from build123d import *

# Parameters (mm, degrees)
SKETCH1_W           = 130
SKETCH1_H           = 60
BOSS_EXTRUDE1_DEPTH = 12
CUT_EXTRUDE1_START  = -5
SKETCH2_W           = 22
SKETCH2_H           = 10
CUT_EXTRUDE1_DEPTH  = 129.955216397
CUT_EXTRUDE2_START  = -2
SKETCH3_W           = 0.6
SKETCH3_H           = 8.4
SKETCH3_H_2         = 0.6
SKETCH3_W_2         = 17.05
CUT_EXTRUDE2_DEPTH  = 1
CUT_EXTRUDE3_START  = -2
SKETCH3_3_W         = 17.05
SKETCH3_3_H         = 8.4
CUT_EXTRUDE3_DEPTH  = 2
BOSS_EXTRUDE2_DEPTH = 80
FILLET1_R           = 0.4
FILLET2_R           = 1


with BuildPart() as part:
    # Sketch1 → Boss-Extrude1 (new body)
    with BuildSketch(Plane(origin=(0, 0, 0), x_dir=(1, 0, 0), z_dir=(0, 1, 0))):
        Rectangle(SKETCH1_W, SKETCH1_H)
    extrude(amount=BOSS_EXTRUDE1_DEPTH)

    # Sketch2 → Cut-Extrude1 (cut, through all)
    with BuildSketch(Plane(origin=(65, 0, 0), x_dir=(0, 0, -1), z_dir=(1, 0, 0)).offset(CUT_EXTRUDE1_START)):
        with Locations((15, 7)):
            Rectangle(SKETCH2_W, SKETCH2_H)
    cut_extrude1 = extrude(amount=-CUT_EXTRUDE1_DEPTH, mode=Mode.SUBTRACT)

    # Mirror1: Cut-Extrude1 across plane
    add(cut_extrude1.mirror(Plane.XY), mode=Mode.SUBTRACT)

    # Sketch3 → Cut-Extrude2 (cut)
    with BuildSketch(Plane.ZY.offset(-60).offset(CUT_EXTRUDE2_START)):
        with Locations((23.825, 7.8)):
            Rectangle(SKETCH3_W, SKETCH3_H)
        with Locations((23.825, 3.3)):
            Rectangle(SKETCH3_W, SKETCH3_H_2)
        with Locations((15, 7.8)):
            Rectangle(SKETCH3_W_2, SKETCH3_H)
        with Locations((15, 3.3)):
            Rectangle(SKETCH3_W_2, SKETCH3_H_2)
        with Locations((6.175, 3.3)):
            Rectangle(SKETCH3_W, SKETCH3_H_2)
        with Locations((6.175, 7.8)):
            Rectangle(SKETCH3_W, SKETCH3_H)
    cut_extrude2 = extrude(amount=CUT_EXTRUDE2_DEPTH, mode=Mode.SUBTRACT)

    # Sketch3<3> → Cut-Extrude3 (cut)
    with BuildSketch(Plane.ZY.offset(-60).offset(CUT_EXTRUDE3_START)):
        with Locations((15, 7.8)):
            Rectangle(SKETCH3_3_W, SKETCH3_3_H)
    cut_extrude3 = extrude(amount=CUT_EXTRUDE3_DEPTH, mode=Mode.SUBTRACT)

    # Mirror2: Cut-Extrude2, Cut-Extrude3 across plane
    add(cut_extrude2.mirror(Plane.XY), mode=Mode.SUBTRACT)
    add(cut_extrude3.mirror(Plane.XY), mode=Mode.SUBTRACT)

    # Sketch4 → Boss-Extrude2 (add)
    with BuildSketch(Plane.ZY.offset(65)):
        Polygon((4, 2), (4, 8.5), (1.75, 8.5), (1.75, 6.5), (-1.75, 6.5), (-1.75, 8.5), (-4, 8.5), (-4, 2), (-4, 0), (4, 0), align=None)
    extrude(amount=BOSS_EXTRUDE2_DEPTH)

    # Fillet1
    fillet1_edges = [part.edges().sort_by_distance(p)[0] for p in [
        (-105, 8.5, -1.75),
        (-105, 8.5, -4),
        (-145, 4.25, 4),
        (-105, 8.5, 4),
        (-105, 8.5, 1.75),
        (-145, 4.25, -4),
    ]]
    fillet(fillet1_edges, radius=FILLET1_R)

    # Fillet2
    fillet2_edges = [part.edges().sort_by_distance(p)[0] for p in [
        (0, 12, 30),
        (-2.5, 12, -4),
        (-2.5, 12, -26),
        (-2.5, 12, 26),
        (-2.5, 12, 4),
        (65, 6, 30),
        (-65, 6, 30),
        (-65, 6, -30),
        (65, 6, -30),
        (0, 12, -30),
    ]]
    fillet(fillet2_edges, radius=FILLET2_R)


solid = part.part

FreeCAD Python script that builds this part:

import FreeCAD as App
import Part
import Sketcher

V = App.Vector
Q = App.Units.Quantity


def edges_at(feature, points):
    """Names of the edges that pass closest to the given points."""
    edges = feature.Shape.Edges
    near = lambda p: min(range(len(edges)), key=lambda i: edges[i].distToShape(Part.Vertex(*p))[0])
    return sorted({f"Edge{near(p) + 1}" for p in points})


def add_polygon(sketch, points):
    """Adds a closed chain of lines whose ends are joined by coincident constraints."""
    first, n = sketch.GeometryCount, len(points)
    for a, b in zip(points, points[1:] + points[:1]):
        sketch.addGeometry(Part.LineSegment(App.Vector(*a, 0), App.Vector(*b, 0)), False)
    for i in range(n):
        sketch.addConstraint(Sketcher.Constraint("Coincident", first + i, 2, first + (i + 1) % n, 1))

doc = App.newDocument("Part")
body = doc.addObject("PartDesign::Body", "Body")

sketch1 = body.newObject("Sketcher::SketchObject", "Sketch")
sketch1.AttachmentSupport = (doc.getObject("XZ_Plane"), [""])
sketch1.MapMode = "FlatFace"
add_polygon(sketch1, [(-65, -30), (-65, 30), (65, 30), (65, -30)])
sketch1.addConstraint([
    Sketcher.Constraint("Vertical", 0),
    Sketcher.Constraint("Horizontal", 1),
    Sketcher.Constraint("Vertical", 2),
    Sketcher.Constraint("Horizontal", 3),
    Sketcher.Constraint("Symmetric", 0, 2, 2, 2, -1, 1),
    Sketcher.Constraint("DistanceX", 1, 1, 1, 2, Q("130 mm")),
    Sketcher.Constraint("DistanceY", 0, 1, 0, 2, Q("60 mm")),
])
pad1 = body.newObject("PartDesign::Pad", "Pad")
pad1.Profile = sketch1
pad1.Length = 12
pad1.Reversed = True

sketch2 = body.newObject("Sketcher::SketchObject", "Sketch001")
sketch2.AttachmentSupport = (doc.getObject("YZ_Plane"), [""])
sketch2.MapMode = "FlatFace"
sketch2.AttachmentOffset = App.Placement(V(0, 0, 60), App.Rotation())
add_polygon(sketch2, [(12, -4), (2, -4), (2, -26), (12, -26)])
sketch2.addConstraint([
    Sketcher.Constraint("Horizontal", 0),
    Sketcher.Constraint("Vertical", 1),
    Sketcher.Constraint("Horizontal", 2),
    Sketcher.Constraint("Vertical", 3),
    Sketcher.Constraint("DistanceX", 0, 2, 0, 1, Q("10 mm")),
    Sketcher.Constraint("DistanceY", 1, 2, 1, 1, Q("22 mm")),
    Sketcher.Constraint("DistanceX", -1, 1, 0, 2, Q("2 mm")),
    Sketcher.Constraint("DistanceY", 0, 2, -1, 1, Q("4 mm")),
])
pocket1 = body.newObject("PartDesign::Pocket", "Pocket")
pocket1.Profile = sketch2
pocket1.Type = "ThroughAll"
doc.recompute()

mirrored = body.newObject("PartDesign::Mirrored", "Mirrored")
mirrored.Originals = [pocket1]
mirrored.MirrorPlane = (doc.getObject("XY_Plane"), [""])
body.Tip = mirrored

sketch3 = body.newObject("Sketcher::SketchObject", "Sketch002")
sketch3.AttachmentSupport = (doc.getObject("YZ_Plane"), [""])
sketch3.MapMode = "FlatFace"
sketch3.AttachmentOffset = App.Placement(V(0, 0, 62), App.Rotation())
add_polygon(sketch3, [(3, 24), (12, 24), (12, 6), (3, 6)])
sketch3.addConstraint([
    Sketcher.Constraint("Horizontal", 0),
    Sketcher.Constraint("Vertical", 1),
    Sketcher.Constraint("Horizontal", 2),
    Sketcher.Constraint("Vertical", 3),
    Sketcher.Constraint("DistanceX", 0, 1, 0, 2, Q("9 mm")),
    Sketcher.Constraint("DistanceX", -1, 1, 0, 2, Q("12 mm")),
    Sketcher.Constraint("DistanceY", 1, 2, 1, 1, Q("18.25 mm")),
    Sketcher.Constraint("DistanceY", -1, 1, 0, 2, Q("24.125 mm")),
])
pocket2 = body.newObject("PartDesign::Pocket", "Pocket001")
pocket2.Profile = sketch3
pocket2.Length = 1

sketch4 = body.newObject("Sketcher::SketchObject", "Sketch003")
sketch4.AttachmentSupport = (doc.getObject("YZ_Plane"), [""])
sketch4.MapMode = "FlatFace"
sketch4.AttachmentOffset = App.Placement(V(0, 0, 62), App.Rotation())
add_polygon(sketch4, [(12, 6), (4, 6), (4, 24), (12, 24)])
sketch4.addConstraint([
    Sketcher.Constraint("Horizontal", 0),
    Sketcher.Constraint("Vertical", 1),
    Sketcher.Constraint("Horizontal", 2),
    Sketcher.Constraint("Vertical", 3),
    Sketcher.Constraint("DistanceX", 0, 2, 0, 1, Q("8.4 mm")),
    Sketcher.Constraint("DistanceX", -1, 1, 2, 2, Q("12 mm")),
    Sketcher.Constraint("DistanceY", 1, 1, 1, 2, Q("17.05 mm")),
    Sketcher.Constraint("DistanceY", -1, 1, 0, 2, Q("6.475 mm")),
])
pocket3 = body.newObject("PartDesign::Pocket", "Pocket002")
pocket3.Profile = sketch4
pocket3.Length = 2
doc.recompute()

mirrored2 = body.newObject("PartDesign::Mirrored", "Mirrored001")
mirrored2.Originals = [pocket2, pocket3]
mirrored2.MirrorPlane = (doc.getObject("XY_Plane"), [""])
body.Tip = mirrored2

sketch5 = body.newObject("Sketcher::SketchObject", "Sketch004")
sketch5.AttachmentSupport = (doc.getObject("YZ_Plane"), [""])
sketch5.MapMode = "FlatFace"
sketch5.AttachmentOffset = App.Placement(V(0, 0, -65), App.Rotation())
add_polygon(sketch5, [(8.5, 4), (8.5, 1.8), (6.5, 1.8), (6.5, -1.8), (8.5, -1.8), (8.5, -4), (0, -4), (0, 4)])
sketch5.addConstraint([
    Sketcher.Constraint("Vertical", 0),
    Sketcher.Constraint("Horizontal", 1),
    Sketcher.Constraint("Vertical", 2),
    Sketcher.Constraint("Horizontal", 3),
    Sketcher.Constraint("Vertical", 4),
    Sketcher.Constraint("Horizontal", 5),
    Sketcher.Constraint("Vertical", 6),
    Sketcher.Constraint("Horizontal", 7),
    Sketcher.Constraint("Symmetric", 5, 2, 6, 2, -1, 1),
    Sketcher.Constraint("Symmetric", 0, 2, 3, 2, -1),
    Sketcher.Constraint("DistanceX", 1, 2, 1, 1, Q("2 mm")),
    Sketcher.Constraint("DistanceY", 6, 1, 6, 2, Q("8 mm")),
    Sketcher.Constraint("DistanceX", 5, 2, 5, 1, Q("8.5 mm")),
    Sketcher.Constraint("DistanceY", 2, 2, 2, 1, Q("3.5 mm")),
])
pad2 = body.newObject("PartDesign::Pad", "Pad001")
pad2.Profile = sketch5
pad2.Length = 80
pad2.Reversed = True
doc.recompute()

fillet = body.newObject("PartDesign::Fillet", "Fillet")
fillet.Base = (pad2, edges_at(pad2, [
    (-105, 8.5, -1.75),
    (-105, 8.5, -4),
    (-145, 4.25, 4),
    (-105, 8.5, 4),
    (-105, 8.5, 1.75),
    (-145, 4.25, -4),
]))
fillet.Radius = 0.4
doc.recompute()

fillet2 = body.newObject("PartDesign::Fillet", "Fillet001")
fillet2.Base = (fillet, edges_at(fillet, [
    (0, 12, 30),
    (-2.5, 12, -4),
    (-2.5, 12, -26),
    (-2.5, 12, 26),
    (-2.5, 12, 4),
    (65, 6, 30),
    (-65, 6, 30),
    (-65, 6, -30),
    (65, 6, -30),
    (0, 12, -30),
]))
fillet2.Radius = 1

doc.recompute()
